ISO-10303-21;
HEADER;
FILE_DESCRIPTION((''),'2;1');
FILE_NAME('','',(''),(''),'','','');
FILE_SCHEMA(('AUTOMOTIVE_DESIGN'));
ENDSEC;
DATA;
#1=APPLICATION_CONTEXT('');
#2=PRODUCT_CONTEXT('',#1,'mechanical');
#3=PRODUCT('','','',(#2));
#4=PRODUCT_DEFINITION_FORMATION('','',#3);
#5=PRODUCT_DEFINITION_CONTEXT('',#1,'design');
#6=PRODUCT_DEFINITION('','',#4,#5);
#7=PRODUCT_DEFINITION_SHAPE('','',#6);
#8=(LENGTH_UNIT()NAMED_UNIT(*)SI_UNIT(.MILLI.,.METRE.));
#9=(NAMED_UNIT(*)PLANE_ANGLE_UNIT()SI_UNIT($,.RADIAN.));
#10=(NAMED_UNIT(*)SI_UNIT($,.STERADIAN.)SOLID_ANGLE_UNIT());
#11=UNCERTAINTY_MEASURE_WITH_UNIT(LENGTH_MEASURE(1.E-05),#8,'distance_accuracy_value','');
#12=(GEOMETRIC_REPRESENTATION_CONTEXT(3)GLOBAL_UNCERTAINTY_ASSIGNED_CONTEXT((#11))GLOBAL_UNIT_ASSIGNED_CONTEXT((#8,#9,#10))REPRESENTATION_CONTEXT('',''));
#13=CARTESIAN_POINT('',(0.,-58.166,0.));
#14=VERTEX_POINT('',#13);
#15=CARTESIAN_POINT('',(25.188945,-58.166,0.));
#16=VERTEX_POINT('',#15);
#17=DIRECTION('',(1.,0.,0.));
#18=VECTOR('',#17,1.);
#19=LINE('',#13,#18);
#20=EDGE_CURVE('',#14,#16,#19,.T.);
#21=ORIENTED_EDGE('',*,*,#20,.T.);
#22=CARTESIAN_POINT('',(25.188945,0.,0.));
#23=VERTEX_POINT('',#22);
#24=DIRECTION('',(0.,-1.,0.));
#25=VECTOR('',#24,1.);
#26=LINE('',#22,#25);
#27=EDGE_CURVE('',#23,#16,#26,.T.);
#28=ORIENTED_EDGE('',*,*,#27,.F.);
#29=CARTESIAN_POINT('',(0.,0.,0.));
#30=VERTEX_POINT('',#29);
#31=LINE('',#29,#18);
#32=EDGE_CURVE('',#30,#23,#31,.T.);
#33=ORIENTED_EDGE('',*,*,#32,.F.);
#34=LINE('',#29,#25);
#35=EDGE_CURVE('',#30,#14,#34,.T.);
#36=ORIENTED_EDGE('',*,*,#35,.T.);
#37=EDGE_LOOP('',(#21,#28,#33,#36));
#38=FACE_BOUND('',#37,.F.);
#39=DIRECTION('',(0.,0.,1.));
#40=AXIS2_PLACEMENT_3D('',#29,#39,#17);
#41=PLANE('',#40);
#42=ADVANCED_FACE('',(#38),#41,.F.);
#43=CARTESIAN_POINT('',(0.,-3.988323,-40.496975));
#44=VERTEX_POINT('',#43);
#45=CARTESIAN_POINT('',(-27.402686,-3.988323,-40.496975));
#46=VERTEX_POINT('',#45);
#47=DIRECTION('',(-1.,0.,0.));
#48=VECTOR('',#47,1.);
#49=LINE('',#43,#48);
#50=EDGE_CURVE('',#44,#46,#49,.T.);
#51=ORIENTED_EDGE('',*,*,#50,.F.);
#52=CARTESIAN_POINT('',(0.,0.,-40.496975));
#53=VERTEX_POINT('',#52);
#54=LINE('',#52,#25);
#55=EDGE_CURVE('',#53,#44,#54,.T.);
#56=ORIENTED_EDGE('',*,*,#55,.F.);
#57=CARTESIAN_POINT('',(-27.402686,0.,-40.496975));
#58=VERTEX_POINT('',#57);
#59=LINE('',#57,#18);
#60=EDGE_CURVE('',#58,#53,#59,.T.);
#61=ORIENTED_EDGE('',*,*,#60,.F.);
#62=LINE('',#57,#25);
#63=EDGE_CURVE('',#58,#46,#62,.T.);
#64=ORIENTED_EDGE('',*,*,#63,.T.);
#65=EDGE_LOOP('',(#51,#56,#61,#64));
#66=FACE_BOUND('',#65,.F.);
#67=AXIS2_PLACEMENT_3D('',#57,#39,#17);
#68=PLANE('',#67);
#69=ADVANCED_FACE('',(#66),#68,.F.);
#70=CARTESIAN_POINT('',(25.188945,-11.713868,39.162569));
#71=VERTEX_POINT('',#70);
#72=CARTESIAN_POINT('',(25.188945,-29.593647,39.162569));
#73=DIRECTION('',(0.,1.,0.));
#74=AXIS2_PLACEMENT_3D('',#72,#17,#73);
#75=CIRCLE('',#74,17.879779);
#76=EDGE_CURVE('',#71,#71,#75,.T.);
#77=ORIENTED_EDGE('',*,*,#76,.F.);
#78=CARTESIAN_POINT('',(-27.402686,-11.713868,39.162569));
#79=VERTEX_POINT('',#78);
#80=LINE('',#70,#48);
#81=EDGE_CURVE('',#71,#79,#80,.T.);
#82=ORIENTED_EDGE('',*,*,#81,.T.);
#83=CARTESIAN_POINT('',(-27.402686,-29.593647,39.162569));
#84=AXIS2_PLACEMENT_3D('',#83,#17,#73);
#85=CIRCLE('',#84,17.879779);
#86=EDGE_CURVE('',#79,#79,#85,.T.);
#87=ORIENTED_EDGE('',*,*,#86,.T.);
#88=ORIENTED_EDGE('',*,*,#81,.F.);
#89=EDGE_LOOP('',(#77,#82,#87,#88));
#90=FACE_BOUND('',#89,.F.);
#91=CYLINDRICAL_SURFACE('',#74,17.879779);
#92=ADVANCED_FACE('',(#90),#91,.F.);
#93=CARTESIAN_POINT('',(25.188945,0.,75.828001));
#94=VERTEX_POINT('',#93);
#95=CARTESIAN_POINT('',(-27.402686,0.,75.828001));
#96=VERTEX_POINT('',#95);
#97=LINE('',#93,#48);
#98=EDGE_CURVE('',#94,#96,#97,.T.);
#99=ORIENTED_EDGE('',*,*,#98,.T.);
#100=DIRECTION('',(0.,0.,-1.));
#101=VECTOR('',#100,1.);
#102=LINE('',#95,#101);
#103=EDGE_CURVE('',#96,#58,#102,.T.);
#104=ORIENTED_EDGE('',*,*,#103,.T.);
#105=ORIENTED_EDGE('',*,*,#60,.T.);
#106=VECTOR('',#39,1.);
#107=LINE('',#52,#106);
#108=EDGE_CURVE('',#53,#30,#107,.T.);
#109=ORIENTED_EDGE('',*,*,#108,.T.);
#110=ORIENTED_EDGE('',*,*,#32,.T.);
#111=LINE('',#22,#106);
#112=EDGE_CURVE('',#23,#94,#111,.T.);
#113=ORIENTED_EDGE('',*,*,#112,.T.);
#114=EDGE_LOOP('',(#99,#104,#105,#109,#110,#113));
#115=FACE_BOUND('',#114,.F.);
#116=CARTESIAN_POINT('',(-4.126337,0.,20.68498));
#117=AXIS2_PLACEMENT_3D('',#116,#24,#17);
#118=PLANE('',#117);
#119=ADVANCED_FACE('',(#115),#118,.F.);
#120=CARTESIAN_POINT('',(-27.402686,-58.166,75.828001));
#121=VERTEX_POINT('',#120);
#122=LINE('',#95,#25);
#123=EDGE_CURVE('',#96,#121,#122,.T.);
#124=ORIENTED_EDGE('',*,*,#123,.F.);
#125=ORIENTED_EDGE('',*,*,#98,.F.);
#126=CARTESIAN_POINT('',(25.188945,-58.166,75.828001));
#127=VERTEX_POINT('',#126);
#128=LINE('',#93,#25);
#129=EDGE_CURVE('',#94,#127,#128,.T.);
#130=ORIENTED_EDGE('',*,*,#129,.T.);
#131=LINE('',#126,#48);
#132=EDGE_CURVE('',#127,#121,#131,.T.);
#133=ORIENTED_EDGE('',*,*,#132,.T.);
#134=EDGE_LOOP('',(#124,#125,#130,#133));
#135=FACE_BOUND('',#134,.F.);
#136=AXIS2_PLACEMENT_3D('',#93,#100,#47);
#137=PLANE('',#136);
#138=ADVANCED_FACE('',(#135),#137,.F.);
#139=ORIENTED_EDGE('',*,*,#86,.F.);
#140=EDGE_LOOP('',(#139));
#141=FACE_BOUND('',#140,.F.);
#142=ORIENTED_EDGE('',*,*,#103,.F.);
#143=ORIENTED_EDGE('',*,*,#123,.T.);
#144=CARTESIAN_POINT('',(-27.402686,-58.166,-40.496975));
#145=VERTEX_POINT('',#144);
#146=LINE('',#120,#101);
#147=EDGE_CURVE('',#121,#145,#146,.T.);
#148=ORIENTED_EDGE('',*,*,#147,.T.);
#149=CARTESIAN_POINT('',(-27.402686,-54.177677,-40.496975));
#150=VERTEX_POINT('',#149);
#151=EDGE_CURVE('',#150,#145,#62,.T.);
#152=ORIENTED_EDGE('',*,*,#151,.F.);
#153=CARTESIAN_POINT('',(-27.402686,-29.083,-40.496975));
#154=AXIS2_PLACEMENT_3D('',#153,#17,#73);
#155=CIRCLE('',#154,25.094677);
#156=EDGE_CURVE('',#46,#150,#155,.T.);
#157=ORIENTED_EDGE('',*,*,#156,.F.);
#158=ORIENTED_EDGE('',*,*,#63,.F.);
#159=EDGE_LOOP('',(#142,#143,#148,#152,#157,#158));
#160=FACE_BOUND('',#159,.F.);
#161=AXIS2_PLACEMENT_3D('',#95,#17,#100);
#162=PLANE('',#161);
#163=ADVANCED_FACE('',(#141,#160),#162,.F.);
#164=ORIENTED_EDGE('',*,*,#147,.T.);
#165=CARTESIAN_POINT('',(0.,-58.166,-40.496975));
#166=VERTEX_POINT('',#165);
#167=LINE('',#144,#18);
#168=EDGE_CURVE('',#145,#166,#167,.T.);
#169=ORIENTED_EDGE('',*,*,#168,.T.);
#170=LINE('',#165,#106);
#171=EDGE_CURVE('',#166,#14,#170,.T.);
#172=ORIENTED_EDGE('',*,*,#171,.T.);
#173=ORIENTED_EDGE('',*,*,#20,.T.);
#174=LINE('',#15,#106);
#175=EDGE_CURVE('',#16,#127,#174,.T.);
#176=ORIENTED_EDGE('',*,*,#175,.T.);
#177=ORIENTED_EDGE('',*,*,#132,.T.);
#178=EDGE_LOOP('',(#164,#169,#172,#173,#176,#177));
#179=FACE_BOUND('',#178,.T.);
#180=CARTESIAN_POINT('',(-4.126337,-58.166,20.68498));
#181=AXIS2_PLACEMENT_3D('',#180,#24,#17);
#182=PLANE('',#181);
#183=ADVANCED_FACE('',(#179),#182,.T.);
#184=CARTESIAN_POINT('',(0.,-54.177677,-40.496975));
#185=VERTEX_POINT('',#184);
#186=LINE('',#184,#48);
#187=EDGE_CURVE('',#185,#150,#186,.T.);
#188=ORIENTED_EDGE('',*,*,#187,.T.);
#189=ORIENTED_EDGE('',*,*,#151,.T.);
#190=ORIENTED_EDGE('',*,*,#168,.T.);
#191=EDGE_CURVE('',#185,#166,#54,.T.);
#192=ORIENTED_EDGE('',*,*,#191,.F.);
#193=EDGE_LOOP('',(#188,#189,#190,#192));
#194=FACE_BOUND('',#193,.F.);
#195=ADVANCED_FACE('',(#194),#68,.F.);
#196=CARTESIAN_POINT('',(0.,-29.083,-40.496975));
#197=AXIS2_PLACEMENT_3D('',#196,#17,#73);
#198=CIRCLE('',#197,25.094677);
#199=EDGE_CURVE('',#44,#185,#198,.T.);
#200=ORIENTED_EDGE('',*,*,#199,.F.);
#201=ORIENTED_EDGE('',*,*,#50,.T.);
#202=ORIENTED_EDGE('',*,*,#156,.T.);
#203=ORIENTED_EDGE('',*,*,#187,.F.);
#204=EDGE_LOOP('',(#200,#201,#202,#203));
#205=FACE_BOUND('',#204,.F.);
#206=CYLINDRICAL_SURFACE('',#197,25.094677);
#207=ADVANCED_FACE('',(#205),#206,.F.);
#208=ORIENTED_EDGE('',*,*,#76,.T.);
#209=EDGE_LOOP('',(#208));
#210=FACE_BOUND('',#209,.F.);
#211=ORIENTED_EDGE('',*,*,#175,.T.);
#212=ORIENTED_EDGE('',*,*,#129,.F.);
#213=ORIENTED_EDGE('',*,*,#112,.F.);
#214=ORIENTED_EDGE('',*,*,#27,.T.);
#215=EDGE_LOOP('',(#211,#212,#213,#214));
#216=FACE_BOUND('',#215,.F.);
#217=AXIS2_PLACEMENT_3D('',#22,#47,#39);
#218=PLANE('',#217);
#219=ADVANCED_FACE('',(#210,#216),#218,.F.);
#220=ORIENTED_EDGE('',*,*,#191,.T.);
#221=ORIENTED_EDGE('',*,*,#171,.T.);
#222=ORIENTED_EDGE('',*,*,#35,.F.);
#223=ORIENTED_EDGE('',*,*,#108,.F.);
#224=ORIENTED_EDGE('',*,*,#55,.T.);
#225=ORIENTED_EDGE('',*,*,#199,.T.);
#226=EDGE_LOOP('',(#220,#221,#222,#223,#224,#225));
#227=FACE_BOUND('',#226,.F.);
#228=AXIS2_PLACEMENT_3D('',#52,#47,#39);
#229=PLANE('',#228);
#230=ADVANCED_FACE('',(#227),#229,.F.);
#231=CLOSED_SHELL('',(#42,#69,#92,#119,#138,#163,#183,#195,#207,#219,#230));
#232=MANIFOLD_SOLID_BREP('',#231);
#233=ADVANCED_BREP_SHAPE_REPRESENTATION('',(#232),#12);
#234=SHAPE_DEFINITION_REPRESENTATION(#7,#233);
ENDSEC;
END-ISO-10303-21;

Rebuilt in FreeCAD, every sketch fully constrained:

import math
import FreeCAD as App
import Part
import Sketcher
Q = App.Units.Quantity


def add_polygon(sketch, points):
    """Adds a closed chain of lines whose ends are joined by coincident constraints."""
    first, n = sketch.GeometryCount, len(points)
    for a, b in zip(points, points[1:] + points[:1]):
        sketch.addGeometry(Part.LineSegment(App.Vector(*a, 0), App.Vector(*b, 0)), False)
    for i in range(n):
        sketch.addConstraint(Sketcher.Constraint("Coincident", first + i, 2, first + (i + 1) % n, 1))

doc = App.newDocument("Part")
body = doc.addObject("PartDesign::Body", "Body")

sketch1 = body.newObject("Sketcher::SketchObject", "Sketch")
sketch1.AttachmentSupport = (doc.getObject("XZ_Plane"), [""])
sketch1.MapMode = "FlatFace"
add_polygon(sketch1, [(0, -40), (0, 0), (25, 0), (25, 76), (-27, 76), (-27, -40)])
sketch1.addConstraint([
    Sketcher.Constraint("Vertical", 0),
    Sketcher.Constraint("Horizontal", 1),
    Sketcher.Constraint("Vertical", 2),
    Sketcher.Constraint("Horizontal", 3),
    Sketcher.Constraint("Vertical", 4),
    Sketcher.Constraint("Horizontal", 5),
    Sketcher.Constraint("Coincident", 0, 2, -1, 1),
    Sketcher.Constraint("DistanceY", 2, 1, 2, 2, 75.828001),
    Sketcher.Constraint("DistanceX", 3, 2, 3, 1, 52.591631),
    Sketcher.Constraint("DistanceX", 1, 1, 1, 2, 25.188945),
    Sketcher.Constraint("DistanceY", 0, 1, 0, 2, 40.496975),
])
pad1 = body.newObject("PartDesign::Pad", "Pad")
pad1.Profile = sketch1
pad1.Length = Q("2.29 in")

sketch2 = body.newObject("Sketcher::SketchObject", "Sketch001")
sketch2.AttachmentSupport = (doc.getObject("YZ_Plane"), [""])
sketch2.MapMode = "FlatFace"
sketch2.AttachmentOffset = App.Placement(App.Vector(0, 0, 25.188945), App.Rotation())
sketch2.addGeometry(Part.Circle(App.Vector(-30, 39, 0), App.Vector(0, 0, 1), 18), False)
sketch2.addConstraint([
    Sketcher.Constraint("Diameter", 0, 35.759558),
    Sketcher.Constraint("DistanceY", -1, 1, 0, 3, 39.162569),
    Sketcher.Constraint("DistanceX", 0, 3, -1, 1, 29.593647),
])
pocket1 = body.newObject("PartDesign::Pocket", "Pocket")
pocket1.Profile = sketch2
pocket1.Type = "ThroughAll"

sketch3 = body.newObject("Sketcher::SketchObject", "Sketch002")
sketch3.AttachmentSupport = (doc.getObject("YZ_Plane"), [""])
sketch3.MapMode = "FlatFace"
sketch3.addGeometry([
    Part.LineSegment(App.Vector(-54, -40, 0), App.Vector(-4, -40, 0)),
    Part.ArcOfCircle(Part.Circle(App.Vector(-29, -40, 0), App.Vector(0, 0, 1), 25), math.radians(0), math.radians(180)),
], False)
sketch3.addConstraint([
    Sketcher.Constraint("Coincident", 0, 1, 1, 2),
    Sketcher.Constraint("Coincident", 1, 1, 0, 2),
    Sketcher.Constraint("Horizontal", 0),
    Sketcher.Constraint("Horizontal", 1, 3, 0, 1),
    Sketcher.Constraint("DistanceX", 1, 3, -1, 1, Q("1.145 in")),
    Sketcher.Constraint("Radius", 1, 25.094677),
    Sketcher.Constraint("DistanceY", 1, 3, -1, 1, 40.496975),
])
pocket2 = body.newObject("PartDesign::Pocket", "Pocket001")
pocket2.Profile = sketch3
pocket2.Type = "ThroughAll"

doc.recompute()
